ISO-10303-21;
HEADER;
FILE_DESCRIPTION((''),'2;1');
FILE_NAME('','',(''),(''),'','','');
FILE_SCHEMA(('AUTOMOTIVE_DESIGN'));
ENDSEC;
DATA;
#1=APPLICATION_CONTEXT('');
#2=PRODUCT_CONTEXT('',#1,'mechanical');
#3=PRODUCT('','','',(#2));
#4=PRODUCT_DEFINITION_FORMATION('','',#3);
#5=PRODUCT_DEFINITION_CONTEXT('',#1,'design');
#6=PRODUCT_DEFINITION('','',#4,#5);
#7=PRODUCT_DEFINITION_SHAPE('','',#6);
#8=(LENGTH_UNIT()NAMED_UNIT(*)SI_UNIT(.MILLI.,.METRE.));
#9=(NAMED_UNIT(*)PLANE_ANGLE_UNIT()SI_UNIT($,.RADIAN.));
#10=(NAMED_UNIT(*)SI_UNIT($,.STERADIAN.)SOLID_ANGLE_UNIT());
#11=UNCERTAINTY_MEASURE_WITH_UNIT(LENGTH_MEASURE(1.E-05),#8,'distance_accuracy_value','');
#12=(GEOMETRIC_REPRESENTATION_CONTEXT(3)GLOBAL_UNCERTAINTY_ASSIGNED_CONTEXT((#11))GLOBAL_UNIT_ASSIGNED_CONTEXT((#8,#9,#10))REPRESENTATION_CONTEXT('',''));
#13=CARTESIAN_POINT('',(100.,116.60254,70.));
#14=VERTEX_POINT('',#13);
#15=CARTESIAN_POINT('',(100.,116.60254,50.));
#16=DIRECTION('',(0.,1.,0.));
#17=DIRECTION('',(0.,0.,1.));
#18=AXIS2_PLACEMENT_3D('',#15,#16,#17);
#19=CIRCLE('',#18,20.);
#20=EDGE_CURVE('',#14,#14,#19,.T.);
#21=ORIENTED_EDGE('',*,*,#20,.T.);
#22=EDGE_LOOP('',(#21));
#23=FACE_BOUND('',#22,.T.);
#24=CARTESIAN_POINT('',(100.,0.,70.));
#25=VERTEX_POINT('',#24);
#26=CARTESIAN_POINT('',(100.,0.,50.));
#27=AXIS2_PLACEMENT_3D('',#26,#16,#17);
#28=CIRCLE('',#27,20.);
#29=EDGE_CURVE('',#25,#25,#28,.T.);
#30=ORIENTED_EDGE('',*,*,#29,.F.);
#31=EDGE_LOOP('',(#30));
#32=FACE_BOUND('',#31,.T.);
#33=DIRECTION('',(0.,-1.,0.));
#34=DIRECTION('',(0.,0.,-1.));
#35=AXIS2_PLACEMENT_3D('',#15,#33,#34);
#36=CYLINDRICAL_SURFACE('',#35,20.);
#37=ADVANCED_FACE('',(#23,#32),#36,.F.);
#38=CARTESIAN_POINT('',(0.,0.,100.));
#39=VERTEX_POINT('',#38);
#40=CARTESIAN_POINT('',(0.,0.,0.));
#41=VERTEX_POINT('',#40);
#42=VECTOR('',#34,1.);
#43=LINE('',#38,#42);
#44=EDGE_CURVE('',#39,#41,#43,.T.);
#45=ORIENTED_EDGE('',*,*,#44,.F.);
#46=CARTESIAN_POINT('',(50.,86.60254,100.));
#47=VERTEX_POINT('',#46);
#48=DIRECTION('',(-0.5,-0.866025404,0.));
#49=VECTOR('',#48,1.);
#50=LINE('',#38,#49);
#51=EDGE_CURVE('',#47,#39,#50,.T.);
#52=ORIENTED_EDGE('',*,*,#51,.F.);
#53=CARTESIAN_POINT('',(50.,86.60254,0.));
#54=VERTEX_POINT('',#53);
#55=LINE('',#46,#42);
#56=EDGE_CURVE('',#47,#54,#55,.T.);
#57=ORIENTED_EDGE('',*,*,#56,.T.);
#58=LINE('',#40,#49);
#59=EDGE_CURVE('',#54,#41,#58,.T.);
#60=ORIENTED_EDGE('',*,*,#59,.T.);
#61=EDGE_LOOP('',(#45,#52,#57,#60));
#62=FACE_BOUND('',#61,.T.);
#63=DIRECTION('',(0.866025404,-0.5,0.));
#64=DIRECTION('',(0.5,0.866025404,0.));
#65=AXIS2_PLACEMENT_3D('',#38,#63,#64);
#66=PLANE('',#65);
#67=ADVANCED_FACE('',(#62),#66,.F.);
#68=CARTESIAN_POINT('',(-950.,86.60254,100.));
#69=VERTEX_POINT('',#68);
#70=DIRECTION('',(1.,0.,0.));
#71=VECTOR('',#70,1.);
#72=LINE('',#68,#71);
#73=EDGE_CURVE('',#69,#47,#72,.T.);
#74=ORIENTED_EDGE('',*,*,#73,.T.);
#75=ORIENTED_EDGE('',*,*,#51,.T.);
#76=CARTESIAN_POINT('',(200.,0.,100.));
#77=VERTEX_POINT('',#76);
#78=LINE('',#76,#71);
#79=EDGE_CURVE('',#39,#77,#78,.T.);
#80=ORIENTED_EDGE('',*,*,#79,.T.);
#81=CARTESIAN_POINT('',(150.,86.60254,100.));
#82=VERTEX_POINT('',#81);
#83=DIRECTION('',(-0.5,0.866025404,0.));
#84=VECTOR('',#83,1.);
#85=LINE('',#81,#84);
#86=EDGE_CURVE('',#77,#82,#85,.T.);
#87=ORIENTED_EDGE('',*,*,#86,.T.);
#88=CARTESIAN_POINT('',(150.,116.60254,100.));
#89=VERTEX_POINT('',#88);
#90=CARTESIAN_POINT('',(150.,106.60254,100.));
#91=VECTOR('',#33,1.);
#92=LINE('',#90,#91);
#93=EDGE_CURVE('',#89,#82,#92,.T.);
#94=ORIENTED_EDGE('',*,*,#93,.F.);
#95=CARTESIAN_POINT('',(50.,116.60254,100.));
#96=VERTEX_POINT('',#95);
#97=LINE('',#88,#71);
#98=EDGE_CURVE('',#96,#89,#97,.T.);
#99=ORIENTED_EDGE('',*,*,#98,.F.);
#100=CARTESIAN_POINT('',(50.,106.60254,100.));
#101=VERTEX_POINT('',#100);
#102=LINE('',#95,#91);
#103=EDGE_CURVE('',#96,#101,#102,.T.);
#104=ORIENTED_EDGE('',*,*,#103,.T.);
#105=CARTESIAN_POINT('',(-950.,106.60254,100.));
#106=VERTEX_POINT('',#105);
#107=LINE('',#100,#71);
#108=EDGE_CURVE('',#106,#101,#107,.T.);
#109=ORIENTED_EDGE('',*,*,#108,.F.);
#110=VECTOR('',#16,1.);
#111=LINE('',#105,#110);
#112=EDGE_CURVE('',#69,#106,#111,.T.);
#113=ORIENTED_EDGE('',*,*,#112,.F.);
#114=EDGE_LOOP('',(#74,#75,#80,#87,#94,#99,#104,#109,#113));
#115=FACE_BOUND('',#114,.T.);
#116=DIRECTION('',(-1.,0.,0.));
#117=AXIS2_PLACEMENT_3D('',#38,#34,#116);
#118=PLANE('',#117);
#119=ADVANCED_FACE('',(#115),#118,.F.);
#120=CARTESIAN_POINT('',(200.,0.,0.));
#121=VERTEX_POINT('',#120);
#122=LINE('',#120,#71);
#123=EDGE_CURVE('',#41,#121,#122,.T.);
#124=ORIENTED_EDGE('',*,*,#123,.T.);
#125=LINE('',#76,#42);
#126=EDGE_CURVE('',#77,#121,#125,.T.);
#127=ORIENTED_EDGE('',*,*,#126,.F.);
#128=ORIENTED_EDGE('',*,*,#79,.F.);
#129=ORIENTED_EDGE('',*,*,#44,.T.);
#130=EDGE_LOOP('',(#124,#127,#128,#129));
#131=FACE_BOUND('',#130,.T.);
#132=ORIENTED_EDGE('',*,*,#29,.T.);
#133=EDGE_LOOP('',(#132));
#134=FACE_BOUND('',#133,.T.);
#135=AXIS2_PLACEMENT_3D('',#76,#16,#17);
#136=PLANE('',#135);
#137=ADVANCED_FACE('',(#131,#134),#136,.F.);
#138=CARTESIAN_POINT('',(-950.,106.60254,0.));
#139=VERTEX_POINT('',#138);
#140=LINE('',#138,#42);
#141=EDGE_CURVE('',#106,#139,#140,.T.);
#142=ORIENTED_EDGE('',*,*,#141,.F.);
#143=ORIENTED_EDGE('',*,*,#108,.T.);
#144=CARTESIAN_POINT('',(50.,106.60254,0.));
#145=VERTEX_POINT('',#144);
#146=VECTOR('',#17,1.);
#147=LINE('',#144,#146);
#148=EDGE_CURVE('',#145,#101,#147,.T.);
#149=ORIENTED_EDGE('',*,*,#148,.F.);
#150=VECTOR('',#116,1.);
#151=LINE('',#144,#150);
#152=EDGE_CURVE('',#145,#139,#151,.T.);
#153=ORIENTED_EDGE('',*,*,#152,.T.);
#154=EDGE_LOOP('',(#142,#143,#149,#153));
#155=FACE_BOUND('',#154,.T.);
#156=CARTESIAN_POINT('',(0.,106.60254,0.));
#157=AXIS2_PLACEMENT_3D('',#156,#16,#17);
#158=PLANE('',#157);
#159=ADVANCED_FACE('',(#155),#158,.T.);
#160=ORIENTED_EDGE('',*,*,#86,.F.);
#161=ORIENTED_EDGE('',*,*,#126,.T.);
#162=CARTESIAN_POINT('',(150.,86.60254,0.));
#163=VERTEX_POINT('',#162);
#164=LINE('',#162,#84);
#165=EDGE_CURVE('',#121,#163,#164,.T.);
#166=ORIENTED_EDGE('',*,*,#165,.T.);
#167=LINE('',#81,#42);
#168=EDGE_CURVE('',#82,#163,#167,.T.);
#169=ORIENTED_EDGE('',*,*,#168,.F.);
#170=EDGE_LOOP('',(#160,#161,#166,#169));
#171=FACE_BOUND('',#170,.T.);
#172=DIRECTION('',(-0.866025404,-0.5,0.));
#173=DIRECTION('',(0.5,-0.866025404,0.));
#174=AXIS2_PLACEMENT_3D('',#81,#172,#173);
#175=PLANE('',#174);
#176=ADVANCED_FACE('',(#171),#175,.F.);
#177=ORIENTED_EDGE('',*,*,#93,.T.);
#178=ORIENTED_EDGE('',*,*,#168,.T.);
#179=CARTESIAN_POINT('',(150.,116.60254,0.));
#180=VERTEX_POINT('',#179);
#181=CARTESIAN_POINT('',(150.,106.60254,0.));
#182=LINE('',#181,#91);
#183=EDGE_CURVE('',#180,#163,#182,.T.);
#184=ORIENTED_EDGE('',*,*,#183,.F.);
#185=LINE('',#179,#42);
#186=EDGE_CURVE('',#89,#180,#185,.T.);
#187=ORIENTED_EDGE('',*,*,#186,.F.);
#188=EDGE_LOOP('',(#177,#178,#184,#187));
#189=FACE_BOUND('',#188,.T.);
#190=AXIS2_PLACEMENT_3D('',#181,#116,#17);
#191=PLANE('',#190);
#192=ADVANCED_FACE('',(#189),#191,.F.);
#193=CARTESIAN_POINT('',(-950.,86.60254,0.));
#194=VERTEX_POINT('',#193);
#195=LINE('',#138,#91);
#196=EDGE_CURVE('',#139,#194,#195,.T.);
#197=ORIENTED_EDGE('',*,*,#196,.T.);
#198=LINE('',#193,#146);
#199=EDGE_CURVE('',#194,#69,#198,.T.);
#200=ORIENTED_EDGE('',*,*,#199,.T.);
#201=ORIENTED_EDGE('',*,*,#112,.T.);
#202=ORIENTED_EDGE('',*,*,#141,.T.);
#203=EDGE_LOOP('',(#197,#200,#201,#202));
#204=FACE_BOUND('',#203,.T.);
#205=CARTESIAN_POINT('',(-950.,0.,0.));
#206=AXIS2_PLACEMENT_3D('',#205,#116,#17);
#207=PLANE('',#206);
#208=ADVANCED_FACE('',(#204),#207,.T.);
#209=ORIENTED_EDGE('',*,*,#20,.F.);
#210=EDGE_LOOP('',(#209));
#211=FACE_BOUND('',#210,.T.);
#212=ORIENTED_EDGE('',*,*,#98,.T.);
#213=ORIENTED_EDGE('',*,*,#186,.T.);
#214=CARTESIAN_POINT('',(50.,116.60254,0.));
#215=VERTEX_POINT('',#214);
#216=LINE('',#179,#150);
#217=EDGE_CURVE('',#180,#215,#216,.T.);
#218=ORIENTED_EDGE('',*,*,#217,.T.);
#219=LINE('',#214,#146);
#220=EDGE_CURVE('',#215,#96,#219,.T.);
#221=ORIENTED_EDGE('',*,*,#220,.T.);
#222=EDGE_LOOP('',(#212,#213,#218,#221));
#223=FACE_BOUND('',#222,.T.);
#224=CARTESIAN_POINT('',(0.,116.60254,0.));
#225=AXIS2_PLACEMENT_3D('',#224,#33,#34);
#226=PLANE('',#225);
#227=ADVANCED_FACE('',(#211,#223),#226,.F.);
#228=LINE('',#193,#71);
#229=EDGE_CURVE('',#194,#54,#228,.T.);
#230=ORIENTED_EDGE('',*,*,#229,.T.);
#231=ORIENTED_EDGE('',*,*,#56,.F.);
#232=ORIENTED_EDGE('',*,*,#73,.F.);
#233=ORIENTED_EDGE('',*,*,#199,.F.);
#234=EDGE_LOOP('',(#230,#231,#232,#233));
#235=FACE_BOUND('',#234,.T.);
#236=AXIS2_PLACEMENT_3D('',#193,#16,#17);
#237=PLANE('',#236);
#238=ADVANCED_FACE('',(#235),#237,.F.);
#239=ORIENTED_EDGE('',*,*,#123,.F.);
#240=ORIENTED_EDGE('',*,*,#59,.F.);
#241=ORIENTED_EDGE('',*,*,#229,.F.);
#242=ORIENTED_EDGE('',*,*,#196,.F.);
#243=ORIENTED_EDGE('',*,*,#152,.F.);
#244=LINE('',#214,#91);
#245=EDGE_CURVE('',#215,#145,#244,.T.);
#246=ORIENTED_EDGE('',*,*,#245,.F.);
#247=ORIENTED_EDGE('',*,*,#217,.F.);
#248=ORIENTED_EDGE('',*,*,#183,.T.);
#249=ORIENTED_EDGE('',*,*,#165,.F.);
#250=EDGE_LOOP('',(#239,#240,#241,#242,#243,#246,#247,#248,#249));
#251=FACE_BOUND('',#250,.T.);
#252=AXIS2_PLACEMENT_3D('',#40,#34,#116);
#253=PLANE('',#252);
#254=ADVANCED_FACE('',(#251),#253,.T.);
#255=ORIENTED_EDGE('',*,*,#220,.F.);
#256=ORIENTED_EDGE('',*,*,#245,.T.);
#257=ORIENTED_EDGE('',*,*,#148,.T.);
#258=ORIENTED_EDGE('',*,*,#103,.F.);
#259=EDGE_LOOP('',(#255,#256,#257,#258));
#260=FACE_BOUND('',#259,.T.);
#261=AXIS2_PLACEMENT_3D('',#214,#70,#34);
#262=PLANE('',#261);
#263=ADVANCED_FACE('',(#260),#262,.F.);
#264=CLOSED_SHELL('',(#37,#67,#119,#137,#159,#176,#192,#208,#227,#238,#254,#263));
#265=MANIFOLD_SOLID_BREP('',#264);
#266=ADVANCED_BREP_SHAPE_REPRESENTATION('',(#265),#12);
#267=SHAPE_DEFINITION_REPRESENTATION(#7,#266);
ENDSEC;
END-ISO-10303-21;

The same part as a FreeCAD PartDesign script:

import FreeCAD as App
import Part
import Sketcher
from FreeCAD import Vector
Q = App.Units.Quantity


def add_polygon(sketch, points):
    """Adds a closed chain of lines whose ends are joined by coincident constraints."""
    first, n = sketch.GeometryCount, len(points)
    for a, b in zip(points, points[1:] + points[:1]):
        sketch.addGeometry(Part.LineSegment(App.Vector(*a, 0), App.Vector(*b, 0)), False)
    for i in range(n):
        sketch.addConstraint(Sketcher.Constraint("Coincident", first + i, 2, first + (i + 1) % n, 1))

doc = App.newDocument("Part")
params = doc.addObject("Spreadsheet::Sheet", "Params")
for row, (alias, value) in enumerate([
    ("sketch1_width", "200 mm"),
    ("sketch1_width2", "100 mm"),
    ("pad1_length", "100 mm"),
    ("sketch2_width", "100 mm"),
    ("pad2_length", "20 mm"),
    ("sketch3_width", "20 mm"),
    ("sketch3_height", "100 mm"),
    ("pad3_length", "1000 mm"),
    ("sketch4_diameter", "40 mm"),
    ("sketch4_width", "100 mm"),
    ("pad4_length", "10 mm"),
    ("sketch5_diameter", "40 mm"),
    ("pocket1_length", "457 mm"),
], start=1):
    params.set(f"A{row}", alias)
    params.set(f"B{row}", "=" + value)
    params.setAlias(f"B{row}", alias)

body = doc.addObject("PartDesign::Body", "Body")

sketch1 = body.newObject("Sketcher::SketchObject", "Sketch")
sketch1.AttachmentSupport = (doc.getObject("XY_Plane"), [""])
sketch1.MapMode = "FlatFace"
add_polygon(sketch1, [(50, 86.60254), (0, 0), (200, 0), (150, 86.60254)])
sketch1.addConstraint([
    Sketcher.Constraint("Horizontal", 1),
    Sketcher.Constraint("Horizontal", 3),
    Sketcher.Constraint("Coincident", 0, 2, -1, 1),
    Sketcher.Constraint("Equal", 0, 2),
    Sketcher.Constraint("DistanceX", 1, 1, 1, 2, Q("200 mm")),
    Sketcher.Constraint("DistanceX", 3, 2, 3, 1, Q("100 mm")),
    Sketcher.Constraint("Angle", 0, Q("-120 deg")),
])
sketch1.setExpression("Constraints[8]", "Params.sketch1_width")
sketch1.setExpression("Constraints[9]", "Params.sketch1_width2")
pad1 = body.newObject("PartDesign::Pad", "Pad")
pad1.Profile = sketch1
pad1.setExpression("Length", "Params.pad1_length")

sketch2 = body.newObject("Sketcher::SketchObject", "Sketch001")
sketch2.AttachmentSupport = (doc.getObject("XZ_Plane"), [""])
sketch2.MapMode = "FlatFace"
sketch2.AttachmentOffset = App.Placement(Vector(0, 0, -86.60254), App.Rotation())
add_polygon(sketch2, [(50, 0), (50, 100), (150, 100), (150, 0)])
sketch2.addConstraint([
    Sketcher.Constraint("Vertical", 0),
    Sketcher.Constraint("Horizontal", 1),
    Sketcher.Constraint("Vertical", 2),
    Sketcher.Constraint("Horizontal", 3),
    Sketcher.Constraint("PointOnObject", 2, 2, -1),
    Sketcher.Constraint("Equal", 3, 0),
    Sketcher.Constraint("DistanceX", 1, 1, 1, 2, Q("100 mm")),
    Sketcher.Constraint("DistanceX", -1, 1, 0, 2, Q("50 mm")),
])
sketch2.setExpression("Constraints[10]", "Params.sketch2_width")
pad2 = body.newObject("PartDesign::Pad", "Pad001")
pad2.Profile = sketch2
pad2.setExpression("Length", "Params.pad2_length")
pad2.Reversed = True

sketch3 = body.newObject("Sketcher::SketchObject", "Sketch002")
sketch3.AttachmentSupport = (doc.getObject("YZ_Plane"), [""])
sketch3.MapMode = "FlatFace"
sketch3.AttachmentOffset = App.Placement(Vector(0, 0, 50), App.Rotation())
add_polygon(sketch3, [(106.60254, 0), (86.60254, 0), (86.60254, 100), (106.60254, 100)])
sketch3.addConstraint([
    Sketcher.Constraint("Horizontal", 0),
    Sketcher.Constraint("Vertical", 1),
    Sketcher.Constraint("Horizontal", 2),
    Sketcher.Constraint("Vertical", 3),
    Sketcher.Constraint("PointOnObject", 0, 2, -1),
    Sketcher.Constraint("DistanceX", 0, 2, 0, 1, Q("20 mm")),
    Sketcher.Constraint("DistanceY", 1, 1, 1, 2, Q("100 mm")),
    Sketcher.Constraint("DistanceX", -1, 1, 0, 2, Q("86.60254 mm")),
])
sketch3.setExpression("Constraints[9]", "Params.sketch3_width")
sketch3.setExpression("Constraints[10]", "Params.sketch3_height")
pad3 = body.newObject("PartDesign::Pad", "Pad002")
pad3.Profile = sketch3
pad3.setExpression("Length", "Params.pad3_length")
pad3.Reversed = True

sketch4 = body.newObject("Sketcher::SketchObject", "Sketch003")
sketch4.AttachmentSupport = (doc.getObject("XZ_Plane"), [""])
sketch4.MapMode = "FlatFace"
sketch4.AttachmentOffset = App.Placement(Vector(0, 0, -106.60254), App.Rotation())
add_polygon(sketch4, [(50, 0), (50, 100), (150, 100), (150, 0)])
sketch4.addGeometry(Part.Circle(Vector(100, 50, 0), Vector(0, 0, 1), 20), False)
sketch4.addConstraint([
    Sketcher.Constraint("Vertical", 0),
    Sketcher.Constraint("Horizontal", 1),
    Sketcher.Constraint("Vertical", 2),
    Sketcher.Constraint("Horizontal", 3),
    Sketcher.Constraint("PointOnObject", 2, 2, -1),
    Sketcher.Constraint("Equal", 3, 0),
    Sketcher.Constraint("Diameter", 4, Q("40 mm")),
    Sketcher.Constraint("DistanceX", 1, 1, 1, 2, Q("100 mm")),
    Sketcher.Constraint("DistanceX", -1, 1, 4, 3, Q("100 mm")),
    Sketcher.Constraint("DistanceY", -1, 1, 4, 3, Q("50 mm")),
    Sketcher.Constraint("DistanceX", -1, 1, 0, 2, Q("50 mm")),
])
sketch4.setExpression("Constraints[10]", "Params.sketch4_diameter")
sketch4.setExpression("Constraints[11]", "Params.sketch4_width")
pad4 = body.newObject("PartDesign::Pad", "Pad003")
pad4.Profile = sketch4
pad4.setExpression("Length", "Params.pad4_length")
pad4.Reversed = True

sketch5 = body.newObject("Sketcher::SketchObject", "Sketch004")
sketch5.AttachmentSupport = (doc.getObject("XZ_Plane"), [""])
sketch5.MapMode = "FlatFace"
sketch5.AttachmentOffset = App.Placement(Vector(0, 0, -116.60254), App.Rotation())
sketch5.addGeometry(Part.Circle(Vector(100, 50, 0), Vector(0, 0, 1), 20), False)
sketch5.addConstraint([
    Sketcher.Constraint("Diameter", 0, Q("40 mm")),
    Sketcher.Constraint("DistanceX", -1, 1, 0, 3, Q("100 mm")),
    Sketcher.Constraint("DistanceY", -1, 1, 0, 3, Q("50 mm")),
])
sketch5.setExpression("Constraints[0]", "Params.sketch5_diameter")
pocket1 = body.newObject("PartDesign::Pocket", "Pocket")
pocket1.Profile = sketch5
pocket1.setExpression("Length", "Params.pocket1_length")
pocket1.Midplane = True

doc.recompute()
